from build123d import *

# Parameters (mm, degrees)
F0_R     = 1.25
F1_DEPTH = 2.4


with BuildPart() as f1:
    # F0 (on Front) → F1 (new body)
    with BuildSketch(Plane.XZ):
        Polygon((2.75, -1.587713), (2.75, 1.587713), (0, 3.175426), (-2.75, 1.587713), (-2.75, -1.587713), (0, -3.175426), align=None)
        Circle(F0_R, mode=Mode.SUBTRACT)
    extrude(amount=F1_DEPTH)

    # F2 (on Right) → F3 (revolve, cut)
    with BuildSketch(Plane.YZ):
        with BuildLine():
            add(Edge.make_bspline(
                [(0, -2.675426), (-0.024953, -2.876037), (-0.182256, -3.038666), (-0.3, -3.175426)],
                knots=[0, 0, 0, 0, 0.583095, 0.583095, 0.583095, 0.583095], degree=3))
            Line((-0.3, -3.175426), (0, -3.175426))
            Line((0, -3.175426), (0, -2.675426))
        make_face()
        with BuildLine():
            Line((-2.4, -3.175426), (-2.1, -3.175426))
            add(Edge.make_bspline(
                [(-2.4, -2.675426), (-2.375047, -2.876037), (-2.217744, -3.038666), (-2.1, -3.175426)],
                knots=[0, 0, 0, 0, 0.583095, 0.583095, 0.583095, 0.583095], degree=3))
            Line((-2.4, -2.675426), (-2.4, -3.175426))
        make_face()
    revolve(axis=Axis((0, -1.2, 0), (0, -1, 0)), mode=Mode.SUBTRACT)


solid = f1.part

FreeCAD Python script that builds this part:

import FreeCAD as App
import Part
import Sketcher

V = App.Vector
Q = App.Units.Quantity

doc = App.newDocument("Part")
body = doc.addObject("PartDesign::Body", "Body")

# Sketch on XZ plane
sketch1 = body.newObject("Sketcher::SketchObject", "Sketch")
sketch1.AttachmentSupport = (doc.getObject("XZ_Plane"), [""])
sketch1.MapMode = "FlatFace"
sketch1.addGeometry([
    Part.LineSegment(V(2.8, -1.6, 0), V(2.8, 1.6, 0)),  # 0
    Part.LineSegment(V(2.8, 1.6, 0), V(0, 3.2, 0)),  # 1
    Part.LineSegment(V(0, 3.2, 0), V(-2.8, 1.6, 0)),  # 2
    Part.LineSegment(V(-2.8, 1.6, 0), V(-2.8, -1.6, 0)),  # 3
    Part.LineSegment(V(-2.8, -1.6, 0), V(0, -3.2, 0)),  # 4
    Part.LineSegment(V(0, -3.2, 0), V(2.8, -1.6, 0)),  # 5
    Part.Circle(V(0, 0, 0), V(0, 0, 1), 1.2),  # 6
], False)
sketch1.addConstraint([
    Sketcher.Constraint("Coincident", 0, 2, 1, 1),
    Sketcher.Constraint("Coincident", 1, 2, 2, 1),
    Sketcher.Constraint("Coincident", 2, 2, 3, 1),
    Sketcher.Constraint("Coincident", 3, 2, 4, 1),
    Sketcher.Constraint("Coincident", 4, 2, 5, 1),
    Sketcher.Constraint("Coincident", 5, 2, 0, 1),
    Sketcher.Constraint("Vertical", 0),
    Sketcher.Constraint("Vertical", 3),
    Sketcher.Constraint("Coincident", 6, 3, -1, 1),
    Sketcher.Constraint("Symmetric", 0, 2, 3, 2, -1, 1),
    Sketcher.Constraint("Symmetric", 1, 2, 4, 2, -1, 1),
    Sketcher.Constraint("PointOnObject", 1, 2, -2),
    Sketcher.Constraint("Parallel", 2, 5),
    Sketcher.Constraint("Horizontal", 0, 2, 2, 2),
    Sketcher.Constraint("Diameter", 6, Q("2.5 mm")),
    Sketcher.Constraint("Angle", 1, Q("150.000004 deg")),
    Sketcher.Constraint("DistanceX", 2, 2, 0, 2, Q("5.5 mm")),
    Sketcher.Constraint("DistanceY", 0, 1, 0, 2, Q("3.175426 mm")),
])
pad1 = body.newObject("PartDesign::Pad", "Pad")
pad1.Profile = sketch1
pad1.Length = 2.4

# Sketch on YZ plane
sketch2 = body.newObject("Sketcher::SketchObject", "Sketch001")
sketch2.AttachmentSupport = (doc.getObject("YZ_Plane"), [""])
sketch2.MapMode = "FlatFace"
sketch2.addGeometry([
    Part.BSplineCurve([V(0, -2.675426, 0), V(-0.024953, -2.876037, 0), V(-0.182256, -3.038666, 0), V(-0.3, -3.175426, 0)], [4, 4], [0, 0.583095], False, 3, [1, 1, 1, 1], False),  # 0
    Part.LineSegment(V(-0.3, -3.175426, 0), V(0, -3.175426, 0)),  # 1
    Part.LineSegment(V(0, -3.175426, 0), V(0, -2.675426, 0)),  # 2
    Part.LineSegment(V(-2.4, -3.175426, 0), V(-2.1, -3.175426, 0)),  # 3
    Part.BSplineCurve([V(-2.4, -2.675426, 0), V(-2.375047, -2.876037, 0), V(-2.217744, -3.038666, 0), V(-2.1, -3.175426, 0)], [4, 4], [0, 0.583095], False, 3, [1, 1, 1, 1], False),  # 4
    Part.LineSegment(V(-2.4, -2.675426, 0), V(-2.4, -3.175426, 0)),  # 5
], False)
sketch2.addConstraint([
    Sketcher.Constraint("Block", 0),
    Sketcher.Constraint("Block", 4),
    Sketcher.Constraint("Coincident", 0, 2, 1, 1),
    Sketcher.Constraint("Coincident", 1, 2, 2, 1),
    Sketcher.Constraint("Coincident", 2, 2, 0, 1),
    Sketcher.Constraint("Coincident", 3, 2, 4, 2),
    Sketcher.Constraint("Coincident", 4, 1, 5, 1),
    Sketcher.Constraint("Coincident", 5, 2, 3, 1),
    Sketcher.Constraint("Horizontal", 1),
    Sketcher.Constraint("Vertical", 2),
    Sketcher.Constraint("Horizontal", 3),
    Sketcher.Constraint("Vertical", 5),
])
groove = body.newObject("PartDesign::Groove", "Groove")
groove.Profile = sketch2
groove.ReferenceAxis = (sketch2, ["H_Axis"])
groove.Angle = 360

doc.recompute()
